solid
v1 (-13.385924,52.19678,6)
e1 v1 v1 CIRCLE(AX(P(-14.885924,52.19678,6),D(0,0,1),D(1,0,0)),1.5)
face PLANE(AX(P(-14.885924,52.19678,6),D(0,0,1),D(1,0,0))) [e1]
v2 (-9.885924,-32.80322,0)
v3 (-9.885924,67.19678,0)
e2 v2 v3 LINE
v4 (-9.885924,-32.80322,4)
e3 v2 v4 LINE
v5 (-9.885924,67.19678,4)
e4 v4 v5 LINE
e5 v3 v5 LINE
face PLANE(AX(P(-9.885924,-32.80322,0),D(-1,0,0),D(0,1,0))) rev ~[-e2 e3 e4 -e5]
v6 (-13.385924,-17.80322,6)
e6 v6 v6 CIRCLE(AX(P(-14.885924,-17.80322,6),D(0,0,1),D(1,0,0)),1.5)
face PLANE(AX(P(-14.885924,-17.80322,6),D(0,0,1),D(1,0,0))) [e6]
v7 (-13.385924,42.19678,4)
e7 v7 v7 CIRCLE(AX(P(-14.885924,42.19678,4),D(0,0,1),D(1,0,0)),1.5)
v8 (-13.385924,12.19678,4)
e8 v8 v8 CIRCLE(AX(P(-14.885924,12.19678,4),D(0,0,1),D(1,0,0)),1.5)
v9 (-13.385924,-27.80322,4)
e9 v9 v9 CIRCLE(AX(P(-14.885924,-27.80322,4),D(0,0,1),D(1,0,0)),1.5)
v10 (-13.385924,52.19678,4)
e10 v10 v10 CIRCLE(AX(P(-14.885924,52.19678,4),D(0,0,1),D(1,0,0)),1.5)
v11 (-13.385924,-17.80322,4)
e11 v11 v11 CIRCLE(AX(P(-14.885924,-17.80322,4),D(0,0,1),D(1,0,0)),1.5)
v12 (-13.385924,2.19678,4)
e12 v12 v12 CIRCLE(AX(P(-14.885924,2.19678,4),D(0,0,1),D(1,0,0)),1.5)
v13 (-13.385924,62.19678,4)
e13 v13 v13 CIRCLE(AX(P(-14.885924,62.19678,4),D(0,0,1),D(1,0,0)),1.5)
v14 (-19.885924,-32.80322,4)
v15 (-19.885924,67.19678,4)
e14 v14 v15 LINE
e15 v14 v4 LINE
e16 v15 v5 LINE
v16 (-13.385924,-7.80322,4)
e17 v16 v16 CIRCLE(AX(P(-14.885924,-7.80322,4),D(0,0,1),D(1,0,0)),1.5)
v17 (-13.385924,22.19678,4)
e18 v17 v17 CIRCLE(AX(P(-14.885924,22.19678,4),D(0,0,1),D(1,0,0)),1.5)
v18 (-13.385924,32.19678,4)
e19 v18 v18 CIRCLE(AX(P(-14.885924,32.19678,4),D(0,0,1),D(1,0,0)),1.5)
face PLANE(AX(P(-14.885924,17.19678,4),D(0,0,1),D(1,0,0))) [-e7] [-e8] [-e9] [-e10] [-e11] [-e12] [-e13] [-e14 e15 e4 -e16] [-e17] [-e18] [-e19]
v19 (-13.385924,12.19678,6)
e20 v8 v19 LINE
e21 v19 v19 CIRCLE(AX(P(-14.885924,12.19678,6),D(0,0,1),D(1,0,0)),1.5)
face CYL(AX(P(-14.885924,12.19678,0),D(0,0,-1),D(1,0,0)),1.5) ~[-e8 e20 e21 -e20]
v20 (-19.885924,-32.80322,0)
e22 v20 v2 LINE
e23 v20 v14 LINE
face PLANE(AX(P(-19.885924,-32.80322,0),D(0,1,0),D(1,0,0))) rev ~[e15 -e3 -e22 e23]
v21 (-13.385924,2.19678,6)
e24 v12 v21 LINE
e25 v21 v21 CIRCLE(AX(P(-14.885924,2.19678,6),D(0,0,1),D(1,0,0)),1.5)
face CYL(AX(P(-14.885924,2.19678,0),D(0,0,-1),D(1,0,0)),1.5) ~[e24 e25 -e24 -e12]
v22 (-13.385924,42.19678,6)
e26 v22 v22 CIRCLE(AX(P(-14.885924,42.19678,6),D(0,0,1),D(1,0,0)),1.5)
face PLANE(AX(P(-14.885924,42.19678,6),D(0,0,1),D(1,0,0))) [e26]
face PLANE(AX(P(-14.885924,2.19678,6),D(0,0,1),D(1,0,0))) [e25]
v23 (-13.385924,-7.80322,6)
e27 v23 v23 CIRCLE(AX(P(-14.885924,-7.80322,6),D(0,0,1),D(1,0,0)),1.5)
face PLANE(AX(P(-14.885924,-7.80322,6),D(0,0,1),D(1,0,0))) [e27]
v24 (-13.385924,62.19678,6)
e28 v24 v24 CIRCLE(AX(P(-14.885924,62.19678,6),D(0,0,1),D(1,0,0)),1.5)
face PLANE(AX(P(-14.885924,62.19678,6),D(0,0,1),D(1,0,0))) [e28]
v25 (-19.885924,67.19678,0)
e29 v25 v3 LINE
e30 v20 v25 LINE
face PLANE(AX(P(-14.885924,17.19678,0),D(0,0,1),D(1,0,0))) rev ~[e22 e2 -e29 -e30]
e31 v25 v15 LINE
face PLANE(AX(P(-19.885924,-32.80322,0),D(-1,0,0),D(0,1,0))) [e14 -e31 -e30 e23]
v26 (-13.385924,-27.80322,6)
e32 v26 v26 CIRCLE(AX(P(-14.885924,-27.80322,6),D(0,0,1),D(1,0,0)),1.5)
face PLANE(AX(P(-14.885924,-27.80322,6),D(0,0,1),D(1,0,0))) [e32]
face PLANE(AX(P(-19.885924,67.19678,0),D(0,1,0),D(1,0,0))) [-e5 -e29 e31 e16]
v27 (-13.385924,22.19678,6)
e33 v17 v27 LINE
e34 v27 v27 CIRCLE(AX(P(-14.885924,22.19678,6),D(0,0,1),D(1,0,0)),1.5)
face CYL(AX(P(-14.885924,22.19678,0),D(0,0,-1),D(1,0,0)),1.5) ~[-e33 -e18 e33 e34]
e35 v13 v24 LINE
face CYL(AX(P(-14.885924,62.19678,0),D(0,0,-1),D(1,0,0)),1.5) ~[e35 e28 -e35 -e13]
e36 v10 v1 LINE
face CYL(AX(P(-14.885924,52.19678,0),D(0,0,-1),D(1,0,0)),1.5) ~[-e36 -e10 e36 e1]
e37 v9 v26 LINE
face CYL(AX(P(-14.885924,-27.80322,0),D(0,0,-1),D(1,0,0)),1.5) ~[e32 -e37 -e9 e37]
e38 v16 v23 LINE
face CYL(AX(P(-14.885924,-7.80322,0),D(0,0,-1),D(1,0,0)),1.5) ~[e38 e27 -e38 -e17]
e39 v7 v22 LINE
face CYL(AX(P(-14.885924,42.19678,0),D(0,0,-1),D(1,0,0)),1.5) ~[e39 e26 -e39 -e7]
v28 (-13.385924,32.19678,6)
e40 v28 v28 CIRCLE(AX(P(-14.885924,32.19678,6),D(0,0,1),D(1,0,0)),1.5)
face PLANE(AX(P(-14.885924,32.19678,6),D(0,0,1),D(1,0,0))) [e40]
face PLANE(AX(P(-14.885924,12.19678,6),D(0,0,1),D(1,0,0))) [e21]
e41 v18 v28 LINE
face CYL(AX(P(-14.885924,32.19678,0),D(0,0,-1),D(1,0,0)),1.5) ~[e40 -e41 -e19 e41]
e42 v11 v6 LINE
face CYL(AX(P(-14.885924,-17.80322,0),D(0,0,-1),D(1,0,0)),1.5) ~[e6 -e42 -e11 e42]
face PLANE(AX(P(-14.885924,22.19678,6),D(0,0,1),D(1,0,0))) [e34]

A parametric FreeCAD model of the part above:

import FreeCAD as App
import Part
import Sketcher
Q = App.Units.Quantity


def add_polygon(sketch, points):
    """Adds a closed chain of lines whose ends are joined by coincident constraints."""
    first, n = sketch.GeometryCount, len(points)
    for a, b in zip(points, points[1:] + points[:1]):
        sketch.addGeometry(Part.LineSegment(App.Vector(*a, 0), App.Vector(*b, 0)), False)
    for i in range(n):
        sketch.addConstraint(Sketcher.Constraint("Coincident", first + i, 2, first + (i + 1) % n, 1))

doc = App.newDocument("Part")
body = doc.addObject("PartDesign::Body", "Body")
body.AllowCompound = True

# Sketch on XY plane
sketch1 = body.newObject("Sketcher::SketchObject", "Sketch")
sketch1.AttachmentSupport = (doc.getObject("XY_Plane"), [""])
sketch1.MapMode = "FlatFace"
sketch1.addGeometry(Part.Circle(App.Vector(-14.885924, 62.19678, 0), App.Vector(0, 0, 1), 1.5), False)
sketch1.addGeometry(Part.Circle(App.Vector(-14.885924, 52.19678, 0), App.Vector(0, 0, 1), 1.5), False)
sketch1.addGeometry(Part.Circle(App.Vector(-14.885924, -17.80322, 0), App.Vector(0, 0, 1), 1.5), False)
sketch1.addGeometry(Part.Circle(App.Vector(-14.885924, -27.80322, 0), App.Vector(0, 0, 1), 1.5), False)
sketch1.addGeometry(Part.Circle(App.Vector(-14.885924, 42.19678, 0), App.Vector(0, 0, 1), 1.5), False)
sketch1.addGeometry(Part.Circle(App.Vector(-14.885924, 12.19678, 0), App.Vector(0, 0, 1), 1.5), False)
sketch1.addGeometry(Part.Circle(App.Vector(-14.885924, -7.80322, 0), App.Vector(0, 0, 1), 1.5), False)
sketch1.addGeometry(Part.Circle(App.Vector(-14.885924, 32.19678, 0), App.Vector(0, 0, 1), 1.5), False)
sketch1.addGeometry(Part.Circle(App.Vector(-14.885924, 22.19678, 0), App.Vector(0, 0, 1), 1.5), False)
sketch1.addGeometry(Part.Circle(App.Vector(-14.885924, 2.19678, 0), App.Vector(0, 0, 1), 1.5), False)
sketch1.addConstraint(Sketcher.Constraint("Equal", 0, 1))
sketch1.addConstraint(Sketcher.Constraint("Equal", 1, 2))
sketch1.addConstraint(Sketcher.Constraint("Equal", 2, 3))
sketch1.addConstraint(Sketcher.Constraint("Equal", 3, 4))
sketch1.addConstraint(Sketcher.Constraint("Equal", 4, 5))
sketch1.addConstraint(Sketcher.Constraint("Equal", 5, 6))
sketch1.addConstraint(Sketcher.Constraint("Equal", 6, 7))
sketch1.addConstraint(Sketcher.Constraint("Equal", 7, 8))
sketch1.addConstraint(Sketcher.Constraint("Equal", 8, 9))
sketch1.addConstraint(Sketcher.Constraint("Vertical", 0, 3, 1, 3))
sketch1.addConstraint(Sketcher.Constraint("Vertical", 1, 3, 2, 3))
sketch1.addConstraint(Sketcher.Constraint("Vertical", 2, 3, 3, 3))
sketch1.addConstraint(Sketcher.Constraint("Vertical", 3, 3, 4, 3))
sketch1.addConstraint(Sketcher.Constraint("Vertical", 4, 3, 5, 3))
sketch1.addConstraint(Sketcher.Constraint("Vertical", 5, 3, 6, 3))
sketch1.addConstraint(Sketcher.Constraint("Vertical", 6, 3, 7, 3))
sketch1.addConstraint(Sketcher.Constraint("Vertical", 7, 3, 8, 3))
sketch1.addConstraint(Sketcher.Constraint("Vertical", 8, 3, 9, 3))
sketch1.addConstraint(Sketcher.Constraint("Diameter", 0, Q("3 mm")))
sketch1.addConstraint(Sketcher.Constraint("DistanceY", 1, 3, 0, 3, Q("10 mm")))
sketch1.addConstraint(Sketcher.Constraint("DistanceY", 2, 3, 1, 3, Q("70 mm")))
sketch1.addConstraint(Sketcher.Constraint("DistanceY", 3, 3, 2, 3, Q("10 mm")))
sketch1.addConstraint(Sketcher.Constraint("DistanceY", 4, 3, 1, 3, Q("10 mm")))
sketch1.addConstraint(Sketcher.Constraint("DistanceY", 5, 3, 4, 3, Q("30 mm")))
sketch1.addConstraint(Sketcher.Constraint("DistanceY", 2, 3, 6, 3, Q("10 mm")))
sketch1.addConstraint(Sketcher.Constraint("DistanceY", 7, 3, 4, 3, Q("10 mm")))
sketch1.addConstraint(Sketcher.Constraint("DistanceY", 8, 3, 7, 3, Q("10 mm")))
sketch1.addConstraint(Sketcher.Constraint("DistanceY", 9, 3, 5, 3, Q("10 mm")))
sketch1.addConstraint(Sketcher.Constraint("DistanceY", -1, 1, 0, 3, Q("62.19678 mm")))
sketch1.addConstraint(Sketcher.Constraint("DistanceX", 0, 3, -1, 1, Q("14.885924 mm")))
pad1 = body.newObject("PartDesign::Pad", "Pad")
pad1.Profile = sketch1
pad1.Length = 6

# Sketch on XY plane
sketch2 = body.newObject("Sketcher::SketchObject", "Sketch001")
sketch2.AttachmentSupport = (doc.getObject("XY_Plane"), [""])
sketch2.MapMode = "FlatFace"
add_polygon(sketch2, [(-19.885924, 67.19678), (-19.885924, -32.80322), (-9.885924, -32.80322), (-9.885924, 67.19678)])  # lines 0-3
sketch2.addGeometry(Part.Circle(App.Vector(-14.885924, -27.80322, 0), App.Vector(0, 0, 1), 1.5), False)  # 4
sketch2.addGeometry(Part.Circle(App.Vector(-14.885924, -17.80322, 0), App.Vector(0, 0, 1), 1.5), False)  # 5
sketch2.addGeometry(Part.Circle(App.Vector(-14.885924, -7.80322, 0), App.Vector(0, 0, 1), 1.5), False)  # 6
sketch2.addGeometry(Part.Circle(App.Vector(-14.885924, 2.19678, 0), App.Vector(0, 0, 1), 1.5), False)  # 7
sketch2.addGeometry(Part.Circle(App.Vector(-14.885924, 12.19678, 0), App.Vector(0, 0, 1), 1.5), False)  # 8
sketch2.addGeometry(Part.Circle(App.Vector(-14.885924, 22.19678, 0), App.Vector(0, 0, 1), 1.5), False)  # 9
sketch2.addGeometry(Part.Circle(App.Vector(-14.885924, 32.19678, 0), App.Vector(0, 0, 1), 1.5), False)  # 10
sketch2.addGeometry(Part.Circle(App.Vector(-14.885924, 42.19678, 0), App.Vector(0, 0, 1), 1.5), False)  # 11
sketch2.addGeometry(Part.Circle(App.Vector(-14.885924, 52.19678, 0), App.Vector(0, 0, 1), 1.5), False)  # 12
sketch2.addGeometry(Part.Circle(App.Vector(-14.885924, 62.19678, 0), App.Vector(0, 0, 1), 1.5), False)  # 13
sketch2.addConstraint(Sketcher.Constraint("Vertical", 0))
sketch2.addConstraint(Sketcher.Constraint("Horizontal", 1))
sketch2.addConstraint(Sketcher.Constraint("Vertical", 2))
sketch2.addConstraint(Sketcher.Constraint("Horizontal", 3))
sketch2.addConstraint(Sketcher.Constraint("Equal", 4, 5))
sketch2.addConstraint(Sketcher.Constraint("Equal", 5, 6))
sketch2.addConstraint(Sketcher.Constraint("Equal", 6, 7))
sketch2.addConstraint(Sketcher.Constraint("Equal", 7, 8))
sketch2.addConstraint(Sketcher.Constraint("Equal", 8, 9))
sketch2.addConstraint(Sketcher.Constraint("Equal", 9, 10))
sketch2.addConstraint(Sketcher.Constraint("Equal", 10, 11))
sketch2.addConstraint(Sketcher.Constraint("Equal", 11, 12))
sketch2.addConstraint(Sketcher.Constraint("Equal", 12, 13))
sketch2.addConstraint(Sketcher.Constraint("Vertical", 4, 3, 5, 3))
sketch2.addConstraint(Sketcher.Constraint("Vertical", 5, 3, 6, 3))
sketch2.addConstraint(Sketcher.Constraint("Vertical", 6, 3, 7, 3))
sketch2.addConstraint(Sketcher.Constraint("Vertical", 7, 3, 8, 3))
sketch2.addConstraint(Sketcher.Constraint("Vertical", 8, 3, 9, 3))
sketch2.addConstraint(Sketcher.Constraint("Vertical", 9, 3, 10, 3))
sketch2.addConstraint(Sketcher.Constraint("Vertical", 10, 3, 11, 3))
sketch2.addConstraint(Sketcher.Constraint("Vertical", 11, 3, 12, 3))
sketch2.addConstraint(Sketcher.Constraint("Vertical", 12, 3, 13, 3))
sketch2.addConstraint(Sketcher.Constraint("Diameter", 4, Q("3 mm")))
sketch2.addConstraint(Sketcher.Constraint("DistanceX", 1, 1, 1, 2, Q("10 mm")))
sketch2.addConstraint(Sketcher.Constraint("DistanceY", 0, 2, 0, 1, Q("100 mm")))
sketch2.addConstraint(Sketcher.Constraint("DistanceY", 4, 3, 5, 3, Q("10 mm")))
sketch2.addConstraint(Sketcher.Constraint("DistanceY", 5, 3, 6, 3, Q("10 mm")))
sketch2.addConstraint(Sketcher.Constraint("DistanceY", 6, 3, 7, 3, Q("10 mm")))
sketch2.addConstraint(Sketcher.Constraint("DistanceY", 7, 3, 8, 3, Q("10 mm")))
sketch2.addConstraint(Sketcher.Constraint("DistanceY", 8, 3, 9, 3, Q("10 mm")))
sketch2.addConstraint(Sketcher.Constraint("DistanceY", 9, 3, 10, 3, Q("10 mm")))
sketch2.addConstraint(Sketcher.Constraint("DistanceY", 10, 3, 11, 3, Q("10 mm")))
sketch2.addConstraint(Sketcher.Constraint("DistanceY", 11, 3, 12, 3, Q("10 mm")))
sketch2.addConstraint(Sketcher.Constraint("DistanceY", 12, 3, 13, 3, Q("10 mm")))
sketch2.addConstraint(Sketcher.Constraint("DistanceX", 0, 2, 4, 3, Q("5 mm")))
sketch2.addConstraint(Sketcher.Constraint("DistanceY", 0, 2, 4, 3, Q("5 mm")))
sketch2.addConstraint(Sketcher.Constraint("DistanceY", 4, 3, -1, 1, Q("27.80322 mm")))
sketch2.addConstraint(Sketcher.Constraint("DistanceX", 4, 3, -1, 1, Q("14.885924 mm")))
pad2 = body.newObject("PartDesign::Pad", "Pad001")
pad2.Profile = sketch2
pad2.Length = 4

doc.recompute()
